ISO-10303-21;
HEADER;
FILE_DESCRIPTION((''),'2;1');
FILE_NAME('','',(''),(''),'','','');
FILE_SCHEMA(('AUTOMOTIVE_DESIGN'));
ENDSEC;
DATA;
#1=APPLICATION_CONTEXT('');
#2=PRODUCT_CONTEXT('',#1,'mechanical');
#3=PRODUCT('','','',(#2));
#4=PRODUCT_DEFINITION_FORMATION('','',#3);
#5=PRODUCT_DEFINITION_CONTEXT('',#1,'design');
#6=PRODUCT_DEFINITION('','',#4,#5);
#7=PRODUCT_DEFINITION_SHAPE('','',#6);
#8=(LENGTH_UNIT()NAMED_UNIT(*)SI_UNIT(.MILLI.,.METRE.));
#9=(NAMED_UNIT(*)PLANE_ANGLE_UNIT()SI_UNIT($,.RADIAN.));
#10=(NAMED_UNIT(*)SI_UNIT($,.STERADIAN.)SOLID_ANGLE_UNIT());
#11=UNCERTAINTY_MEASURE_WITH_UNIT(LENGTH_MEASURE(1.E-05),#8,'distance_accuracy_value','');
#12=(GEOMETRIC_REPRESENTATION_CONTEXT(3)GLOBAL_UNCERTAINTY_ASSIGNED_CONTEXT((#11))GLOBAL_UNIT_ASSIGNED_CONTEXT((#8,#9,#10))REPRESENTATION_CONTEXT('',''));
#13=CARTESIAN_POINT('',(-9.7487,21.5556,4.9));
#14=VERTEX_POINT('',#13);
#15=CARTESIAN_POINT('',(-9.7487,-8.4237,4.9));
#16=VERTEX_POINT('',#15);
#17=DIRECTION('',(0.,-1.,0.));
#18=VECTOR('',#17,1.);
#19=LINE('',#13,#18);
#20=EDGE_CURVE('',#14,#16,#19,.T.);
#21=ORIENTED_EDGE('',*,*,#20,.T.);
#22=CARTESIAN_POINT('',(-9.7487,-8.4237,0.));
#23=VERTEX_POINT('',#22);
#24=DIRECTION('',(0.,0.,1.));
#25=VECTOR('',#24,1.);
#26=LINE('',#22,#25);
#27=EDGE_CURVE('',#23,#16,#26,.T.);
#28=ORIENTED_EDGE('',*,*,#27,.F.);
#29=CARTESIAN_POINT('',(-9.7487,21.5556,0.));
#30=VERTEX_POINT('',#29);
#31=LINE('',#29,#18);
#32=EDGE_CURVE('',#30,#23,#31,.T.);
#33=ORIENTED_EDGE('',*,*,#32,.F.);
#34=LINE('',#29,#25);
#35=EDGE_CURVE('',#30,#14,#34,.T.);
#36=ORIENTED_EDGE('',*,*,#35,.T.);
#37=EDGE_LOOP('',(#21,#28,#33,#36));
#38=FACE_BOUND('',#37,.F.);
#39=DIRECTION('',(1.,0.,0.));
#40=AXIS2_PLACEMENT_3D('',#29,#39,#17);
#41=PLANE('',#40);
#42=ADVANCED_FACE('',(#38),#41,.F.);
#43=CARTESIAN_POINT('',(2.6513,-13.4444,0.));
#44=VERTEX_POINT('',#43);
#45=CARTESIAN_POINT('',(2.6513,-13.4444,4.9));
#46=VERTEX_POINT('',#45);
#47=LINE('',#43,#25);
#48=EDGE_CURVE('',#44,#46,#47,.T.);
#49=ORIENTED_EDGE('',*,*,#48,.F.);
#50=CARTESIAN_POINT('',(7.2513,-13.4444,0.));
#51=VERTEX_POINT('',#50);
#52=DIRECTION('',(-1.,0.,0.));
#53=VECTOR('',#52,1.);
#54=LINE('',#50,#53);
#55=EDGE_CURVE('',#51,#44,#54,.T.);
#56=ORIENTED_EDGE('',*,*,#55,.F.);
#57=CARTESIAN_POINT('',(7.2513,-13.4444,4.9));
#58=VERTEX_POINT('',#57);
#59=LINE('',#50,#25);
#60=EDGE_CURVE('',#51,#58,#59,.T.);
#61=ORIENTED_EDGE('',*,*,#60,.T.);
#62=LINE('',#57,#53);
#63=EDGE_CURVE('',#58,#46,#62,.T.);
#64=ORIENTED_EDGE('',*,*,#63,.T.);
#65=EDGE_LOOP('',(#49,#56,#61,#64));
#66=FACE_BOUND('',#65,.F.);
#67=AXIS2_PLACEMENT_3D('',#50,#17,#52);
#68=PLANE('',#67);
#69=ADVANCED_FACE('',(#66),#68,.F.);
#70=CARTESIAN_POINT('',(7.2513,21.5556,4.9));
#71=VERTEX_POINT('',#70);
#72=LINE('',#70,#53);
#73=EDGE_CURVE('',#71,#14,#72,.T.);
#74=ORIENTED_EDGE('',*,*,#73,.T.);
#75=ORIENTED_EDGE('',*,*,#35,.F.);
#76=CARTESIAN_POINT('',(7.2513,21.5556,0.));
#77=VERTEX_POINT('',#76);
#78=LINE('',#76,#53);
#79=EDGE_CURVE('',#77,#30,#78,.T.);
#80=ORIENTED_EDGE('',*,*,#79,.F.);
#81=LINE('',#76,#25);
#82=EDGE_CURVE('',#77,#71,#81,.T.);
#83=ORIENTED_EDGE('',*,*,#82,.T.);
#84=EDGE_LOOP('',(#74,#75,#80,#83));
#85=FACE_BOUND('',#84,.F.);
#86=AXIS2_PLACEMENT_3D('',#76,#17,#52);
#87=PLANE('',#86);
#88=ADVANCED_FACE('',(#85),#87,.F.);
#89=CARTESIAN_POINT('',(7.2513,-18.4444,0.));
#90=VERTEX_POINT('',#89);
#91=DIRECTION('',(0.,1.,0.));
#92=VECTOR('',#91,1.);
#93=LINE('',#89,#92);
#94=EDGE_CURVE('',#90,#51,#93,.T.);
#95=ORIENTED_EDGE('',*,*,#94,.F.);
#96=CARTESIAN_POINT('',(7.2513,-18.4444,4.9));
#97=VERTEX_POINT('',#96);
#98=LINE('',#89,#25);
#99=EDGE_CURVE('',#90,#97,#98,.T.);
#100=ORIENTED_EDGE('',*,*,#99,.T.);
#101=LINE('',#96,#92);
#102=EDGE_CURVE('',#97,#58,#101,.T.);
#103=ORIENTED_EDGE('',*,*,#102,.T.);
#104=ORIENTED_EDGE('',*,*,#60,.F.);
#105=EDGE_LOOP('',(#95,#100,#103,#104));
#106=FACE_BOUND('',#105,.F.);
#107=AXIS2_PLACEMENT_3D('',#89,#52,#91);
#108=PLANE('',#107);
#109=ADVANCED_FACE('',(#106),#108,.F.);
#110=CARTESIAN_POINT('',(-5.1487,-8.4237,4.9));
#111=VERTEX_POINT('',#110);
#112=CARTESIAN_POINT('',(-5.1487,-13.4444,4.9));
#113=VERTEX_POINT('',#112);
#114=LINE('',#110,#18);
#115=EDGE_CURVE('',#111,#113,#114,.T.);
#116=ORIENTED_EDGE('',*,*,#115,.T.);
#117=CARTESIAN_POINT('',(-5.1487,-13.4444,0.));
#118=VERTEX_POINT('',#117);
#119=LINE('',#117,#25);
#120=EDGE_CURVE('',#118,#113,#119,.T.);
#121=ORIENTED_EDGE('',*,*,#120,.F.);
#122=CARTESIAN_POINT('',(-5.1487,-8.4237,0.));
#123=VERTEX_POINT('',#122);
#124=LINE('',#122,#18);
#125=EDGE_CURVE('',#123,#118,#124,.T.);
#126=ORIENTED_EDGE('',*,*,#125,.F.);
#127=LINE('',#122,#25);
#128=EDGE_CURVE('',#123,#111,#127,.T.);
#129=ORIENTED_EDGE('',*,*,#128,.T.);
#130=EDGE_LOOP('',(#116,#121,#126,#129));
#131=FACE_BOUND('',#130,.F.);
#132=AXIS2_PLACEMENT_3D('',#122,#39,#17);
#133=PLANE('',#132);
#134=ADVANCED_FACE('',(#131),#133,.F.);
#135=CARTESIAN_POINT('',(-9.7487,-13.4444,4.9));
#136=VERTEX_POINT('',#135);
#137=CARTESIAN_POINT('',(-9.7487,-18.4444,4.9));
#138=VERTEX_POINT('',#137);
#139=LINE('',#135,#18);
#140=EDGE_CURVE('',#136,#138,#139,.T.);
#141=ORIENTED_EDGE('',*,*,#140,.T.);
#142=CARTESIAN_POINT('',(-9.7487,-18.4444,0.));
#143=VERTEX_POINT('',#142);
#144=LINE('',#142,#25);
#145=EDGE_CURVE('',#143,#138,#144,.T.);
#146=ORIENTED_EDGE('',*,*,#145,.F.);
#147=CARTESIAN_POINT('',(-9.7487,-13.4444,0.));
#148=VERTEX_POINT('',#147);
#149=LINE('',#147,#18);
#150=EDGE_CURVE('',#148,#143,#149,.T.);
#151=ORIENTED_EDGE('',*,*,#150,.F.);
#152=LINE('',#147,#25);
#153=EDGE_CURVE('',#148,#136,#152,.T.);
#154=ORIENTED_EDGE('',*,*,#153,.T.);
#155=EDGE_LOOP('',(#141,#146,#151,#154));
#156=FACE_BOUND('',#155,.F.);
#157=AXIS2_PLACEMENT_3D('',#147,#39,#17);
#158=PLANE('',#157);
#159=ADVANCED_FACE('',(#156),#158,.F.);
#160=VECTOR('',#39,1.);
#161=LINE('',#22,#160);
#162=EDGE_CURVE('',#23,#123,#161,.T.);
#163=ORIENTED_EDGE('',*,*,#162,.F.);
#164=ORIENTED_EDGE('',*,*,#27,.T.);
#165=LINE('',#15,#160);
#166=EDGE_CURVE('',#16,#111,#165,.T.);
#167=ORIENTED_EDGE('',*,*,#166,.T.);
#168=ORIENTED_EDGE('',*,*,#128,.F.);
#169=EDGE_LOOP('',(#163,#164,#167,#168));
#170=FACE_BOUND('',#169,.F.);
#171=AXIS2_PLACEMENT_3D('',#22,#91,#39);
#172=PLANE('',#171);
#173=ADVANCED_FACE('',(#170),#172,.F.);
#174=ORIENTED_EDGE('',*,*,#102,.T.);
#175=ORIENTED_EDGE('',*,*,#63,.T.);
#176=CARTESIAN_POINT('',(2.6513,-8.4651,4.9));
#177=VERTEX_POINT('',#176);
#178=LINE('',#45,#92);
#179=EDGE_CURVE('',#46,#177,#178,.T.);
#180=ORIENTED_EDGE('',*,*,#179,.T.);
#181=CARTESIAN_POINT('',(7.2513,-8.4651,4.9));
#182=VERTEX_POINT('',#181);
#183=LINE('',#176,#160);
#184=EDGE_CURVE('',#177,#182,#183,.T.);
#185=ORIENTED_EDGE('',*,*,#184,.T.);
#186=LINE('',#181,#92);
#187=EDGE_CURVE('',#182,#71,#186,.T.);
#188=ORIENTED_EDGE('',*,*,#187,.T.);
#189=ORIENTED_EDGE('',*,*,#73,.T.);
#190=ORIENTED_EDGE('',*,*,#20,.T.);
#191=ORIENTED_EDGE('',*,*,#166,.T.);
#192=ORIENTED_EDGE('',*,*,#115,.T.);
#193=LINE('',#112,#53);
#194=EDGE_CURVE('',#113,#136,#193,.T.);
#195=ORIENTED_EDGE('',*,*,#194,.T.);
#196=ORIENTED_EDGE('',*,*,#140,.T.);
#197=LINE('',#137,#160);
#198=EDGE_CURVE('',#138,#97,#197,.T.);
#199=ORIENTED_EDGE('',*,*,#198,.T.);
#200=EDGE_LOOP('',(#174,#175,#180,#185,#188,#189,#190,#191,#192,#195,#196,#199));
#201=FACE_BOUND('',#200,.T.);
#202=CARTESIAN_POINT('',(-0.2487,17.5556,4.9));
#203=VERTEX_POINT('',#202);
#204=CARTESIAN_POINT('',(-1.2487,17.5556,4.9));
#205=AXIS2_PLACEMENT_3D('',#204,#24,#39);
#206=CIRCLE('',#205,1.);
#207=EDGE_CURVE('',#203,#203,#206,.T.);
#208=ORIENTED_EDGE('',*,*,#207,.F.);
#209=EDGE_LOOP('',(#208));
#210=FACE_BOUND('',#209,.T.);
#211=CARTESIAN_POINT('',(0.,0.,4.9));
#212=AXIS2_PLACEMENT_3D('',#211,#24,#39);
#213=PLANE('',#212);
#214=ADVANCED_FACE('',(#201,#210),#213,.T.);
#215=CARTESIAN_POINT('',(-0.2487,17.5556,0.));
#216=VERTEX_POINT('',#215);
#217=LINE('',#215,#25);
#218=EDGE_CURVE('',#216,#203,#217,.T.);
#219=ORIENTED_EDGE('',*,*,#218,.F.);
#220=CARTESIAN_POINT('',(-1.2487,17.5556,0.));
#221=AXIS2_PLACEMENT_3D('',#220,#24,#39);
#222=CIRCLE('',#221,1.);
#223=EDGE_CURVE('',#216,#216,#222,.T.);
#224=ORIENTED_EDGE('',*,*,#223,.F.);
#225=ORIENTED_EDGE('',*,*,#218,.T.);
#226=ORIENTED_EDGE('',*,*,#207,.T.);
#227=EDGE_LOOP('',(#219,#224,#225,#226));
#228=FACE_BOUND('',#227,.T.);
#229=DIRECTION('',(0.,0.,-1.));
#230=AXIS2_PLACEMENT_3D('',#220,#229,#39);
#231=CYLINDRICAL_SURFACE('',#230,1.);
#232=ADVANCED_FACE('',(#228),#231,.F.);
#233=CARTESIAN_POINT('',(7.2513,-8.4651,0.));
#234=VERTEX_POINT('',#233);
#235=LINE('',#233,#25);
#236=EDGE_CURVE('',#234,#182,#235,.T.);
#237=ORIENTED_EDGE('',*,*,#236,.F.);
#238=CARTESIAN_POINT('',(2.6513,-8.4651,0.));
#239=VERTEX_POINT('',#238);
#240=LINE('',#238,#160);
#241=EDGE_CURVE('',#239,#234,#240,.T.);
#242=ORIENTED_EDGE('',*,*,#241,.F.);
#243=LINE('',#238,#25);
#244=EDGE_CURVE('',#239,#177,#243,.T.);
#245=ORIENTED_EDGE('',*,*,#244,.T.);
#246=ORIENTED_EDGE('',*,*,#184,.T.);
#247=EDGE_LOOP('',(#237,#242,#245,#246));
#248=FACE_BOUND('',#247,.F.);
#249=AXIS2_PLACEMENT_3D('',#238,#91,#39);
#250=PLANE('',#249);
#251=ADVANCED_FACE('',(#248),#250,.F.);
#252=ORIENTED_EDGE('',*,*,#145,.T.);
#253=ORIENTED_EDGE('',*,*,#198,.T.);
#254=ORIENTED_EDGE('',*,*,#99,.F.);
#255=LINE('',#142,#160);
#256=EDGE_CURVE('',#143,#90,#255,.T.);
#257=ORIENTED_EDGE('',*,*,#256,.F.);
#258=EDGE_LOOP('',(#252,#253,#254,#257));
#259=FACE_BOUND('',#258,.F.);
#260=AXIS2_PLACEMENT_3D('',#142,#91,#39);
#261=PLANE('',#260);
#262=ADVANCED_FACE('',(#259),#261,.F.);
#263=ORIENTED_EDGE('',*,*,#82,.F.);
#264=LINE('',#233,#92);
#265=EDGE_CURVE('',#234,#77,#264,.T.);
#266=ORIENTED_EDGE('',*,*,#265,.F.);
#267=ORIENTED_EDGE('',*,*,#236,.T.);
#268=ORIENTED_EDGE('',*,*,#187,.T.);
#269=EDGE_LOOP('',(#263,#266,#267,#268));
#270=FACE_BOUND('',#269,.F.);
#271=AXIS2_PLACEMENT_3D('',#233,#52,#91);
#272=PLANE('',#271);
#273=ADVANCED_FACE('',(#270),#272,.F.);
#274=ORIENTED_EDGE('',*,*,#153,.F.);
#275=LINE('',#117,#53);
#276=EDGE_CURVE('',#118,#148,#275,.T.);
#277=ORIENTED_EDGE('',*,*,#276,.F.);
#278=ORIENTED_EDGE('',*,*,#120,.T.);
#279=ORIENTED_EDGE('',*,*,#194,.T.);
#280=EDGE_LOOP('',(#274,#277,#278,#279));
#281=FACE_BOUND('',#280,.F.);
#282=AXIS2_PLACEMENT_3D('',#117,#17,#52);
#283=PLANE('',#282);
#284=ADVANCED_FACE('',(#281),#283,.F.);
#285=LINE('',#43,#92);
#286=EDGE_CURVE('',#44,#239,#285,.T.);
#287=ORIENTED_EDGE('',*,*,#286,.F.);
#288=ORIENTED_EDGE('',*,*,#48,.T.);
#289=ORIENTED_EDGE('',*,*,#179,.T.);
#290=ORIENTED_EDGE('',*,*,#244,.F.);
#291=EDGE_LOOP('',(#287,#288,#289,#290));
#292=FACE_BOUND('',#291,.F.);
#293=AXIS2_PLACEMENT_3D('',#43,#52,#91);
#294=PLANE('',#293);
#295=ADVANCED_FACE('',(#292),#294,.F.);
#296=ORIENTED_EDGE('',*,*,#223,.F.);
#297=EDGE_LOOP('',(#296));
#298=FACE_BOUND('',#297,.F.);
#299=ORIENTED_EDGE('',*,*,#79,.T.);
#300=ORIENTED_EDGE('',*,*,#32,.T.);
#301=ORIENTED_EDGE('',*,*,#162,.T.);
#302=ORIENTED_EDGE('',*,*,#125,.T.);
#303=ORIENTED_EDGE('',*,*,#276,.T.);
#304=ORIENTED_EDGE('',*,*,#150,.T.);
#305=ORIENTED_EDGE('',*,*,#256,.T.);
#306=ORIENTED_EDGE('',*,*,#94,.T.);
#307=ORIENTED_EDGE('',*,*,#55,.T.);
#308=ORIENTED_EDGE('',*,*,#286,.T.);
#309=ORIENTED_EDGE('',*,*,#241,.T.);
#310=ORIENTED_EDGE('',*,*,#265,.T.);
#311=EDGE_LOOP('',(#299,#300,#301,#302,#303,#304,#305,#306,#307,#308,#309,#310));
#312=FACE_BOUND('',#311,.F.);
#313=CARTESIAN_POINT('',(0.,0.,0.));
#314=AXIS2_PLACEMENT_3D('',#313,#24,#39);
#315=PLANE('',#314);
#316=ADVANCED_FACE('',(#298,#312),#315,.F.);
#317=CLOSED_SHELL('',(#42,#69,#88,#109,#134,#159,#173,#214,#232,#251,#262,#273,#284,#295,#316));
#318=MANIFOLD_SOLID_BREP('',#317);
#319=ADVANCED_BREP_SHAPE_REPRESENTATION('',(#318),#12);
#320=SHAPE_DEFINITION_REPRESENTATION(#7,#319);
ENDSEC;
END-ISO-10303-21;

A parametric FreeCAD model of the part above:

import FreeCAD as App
import Part
import Sketcher
Q = App.Units.Quantity

doc = App.newDocument("Part")
params = doc.addObject("Spreadsheet::Sheet", "Params")
for row, (alias, value) in enumerate([
    ("sketch1_diameter", "2 mm"),
    ("sketch1_width", "17 mm"),
    ("sketch1_height", "5 mm"),
    ("sketch1_width2", "4.6 mm"),
    ("pad1_length", "4.9 mm"),
], start=1):
    params.set(f"A{row}", alias)
    params.set(f"B{row}", "=" + value)
    params.setAlias(f"B{row}", alias)

body = doc.addObject("PartDesign::Body", "Body")

# Sketch on XY plane
sketch1 = body.newObject("Sketcher::SketchObject", "Sketch")
sketch1.AttachmentSupport = (doc.getObject("XY_Plane"), [""])
sketch1.MapMode = "FlatFace"
sketch1.addGeometry(Part.LineSegment(App.Vector(-5.1487, -8.4237, 0), App.Vector(-5.1487, -13.4444, 0)), False)
sketch1.addGeometry(Part.LineSegment(App.Vector(-5.1487, -13.4444, 0), App.Vector(-9.7487, -13.4444, 0)), False)
sketch1.addGeometry(Part.LineSegment(App.Vector(-9.7487, -13.4444, 0), App.Vector(-9.7487, -18.4444, 0)), False)
sketch1.addGeometry(Part.LineSegment(App.Vector(-9.7487, -18.4444, 0), App.Vector(7.2513, -18.4444, 0)), False)
sketch1.addGeometry(Part.LineSegment(App.Vector(7.2513, -18.4444, 0), App.Vector(7.2513, -13.4444, 0)), False)
sketch1.addGeometry(Part.LineSegment(App.Vector(7.2513, -13.4444, 0), App.Vector(2.6513, -13.4444, 0)), False)
sketch1.addGeometry(Part.LineSegment(App.Vector(2.6513, -13.4444, 0), App.Vector(2.6513, -8.4651, 0)), False)
sketch1.addGeometry(Part.LineSegment(App.Vector(2.6513, -8.4651, 0), App.Vector(7.2513, -8.4651, 0)), False)
sketch1.addGeometry(Part.LineSegment(App.Vector(7.2513, -8.4651, 0), App.Vector(7.2513, 21.5556, 0)), False)
sketch1.addGeometry(Part.LineSegment(App.Vector(7.2513, 21.5556, 0), App.Vector(-9.7487, 21.5556, 0)), False)
sketch1.addGeometry(Part.LineSegment(App.Vector(-9.7487, 21.5556, 0), App.Vector(-9.7487, -8.4237, 0)), False)
sketch1.addGeometry(Part.LineSegment(App.Vector(-9.7487, -8.4237, 0), App.Vector(-5.1487, -8.4237, 0)), False)
sketch1.addGeometry(Part.Circle(App.Vector(-1.2487, 17.5556, 0), App.Vector(0, 0, 1), 1), False)
sketch1.addConstraint(Sketcher.Constraint("Coincident", 0, 2, 1, 1))
sketch1.addConstraint(Sketcher.Constraint("Coincident", 1, 2, 2, 1))
sketch1.addConstraint(Sketcher.Constraint("Coincident", 2, 2, 3, 1))
sketch1.addConstraint(Sketcher.Constraint("Coincident", 3, 2, 4, 1))
sketch1.addConstraint(Sketcher.Constraint("Coincident", 4, 2, 5, 1))
sketch1.addConstraint(Sketcher.Constraint("Coincident", 5, 2, 6, 1))
sketch1.addConstraint(Sketcher.Constraint("Coincident", 6, 2, 7, 1))
sketch1.addConstraint(Sketcher.Constraint("Coincident", 7, 2, 8, 1))
sketch1.addConstraint(Sketcher.Constraint("Coincident", 8, 2, 9, 1))
sketch1.addConstraint(Sketcher.Constraint("Coincident", 9, 2, 10, 1))
sketch1.addConstraint(Sketcher.Constraint("Coincident", 10, 2, 11, 1))
sketch1.addConstraint(Sketcher.Constraint("Coincident", 11, 2, 0, 1))
sketch1.addConstraint(Sketcher.Constraint("Vertical", 0))
sketch1.addConstraint(Sketcher.Constraint("Horizontal", 1))
sketch1.addConstraint(Sketcher.Constraint("Vertical", 2))
sketch1.addConstraint(Sketcher.Constraint("Horizontal", 3))
sketch1.addConstraint(Sketcher.Constraint("Vertical", 4))
sketch1.addConstraint(Sketcher.Constraint("Horizontal", 5))
sketch1.addConstraint(Sketcher.Constraint("Vertical", 6))
sketch1.addConstraint(Sketcher.Constraint("Horizontal", 7))
sketch1.addConstraint(Sketcher.Constraint("Vertical", 8))
sketch1.addConstraint(Sketcher.Constraint("Horizontal", 9))
sketch1.addConstraint(Sketcher.Constraint("Vertical", 10))
sketch1.addConstraint(Sketcher.Constraint("Horizontal", 11))
sketch1.addConstraint(Sketcher.Constraint("Horizontal", 1, 2, 4, 2))
sketch1.addConstraint(Sketcher.Constraint("Vertical", 4, 2, 7, 2))
sketch1.addConstraint(Sketcher.Constraint("Vertical", 2, 2, 9, 2))
sketch1.addConstraint(Sketcher.Constraint("Equal", 1, 5))
sketch1.addConstraint(Sketcher.Constraint("Diameter", 12, Q("2 mm")))
sketch1.addConstraint(Sketcher.Constraint("DistanceX", 3, 1, 3, 2, Q("17 mm")))
sketch1.addConstraint(Sketcher.Constraint("DistanceY", 2, 2, 2, 1, Q("5 mm")))
sketch1.addConstraint(Sketcher.Constraint("DistanceX", 1, 2, 1, 1, Q("4.6 mm")))
sketch1.addConstraint(Sketcher.Constraint("DistanceY", 0, 2, 12, 3, Q("31 mm")))
sketch1.addConstraint(Sketcher.Constraint("DistanceY", 12, 3, 8, 2, Q("4 mm")))
sketch1.addConstraint(Sketcher.Constraint("DistanceX", 0, 2, 12, 3, Q("3.9 mm")))
sketch1.addConstraint(Sketcher.Constraint("DistanceY", 0, 2, 0, 1, Q("5.0207 mm")))
sketch1.addConstraint(Sketcher.Constraint("DistanceY", 6, 1, 6, 2, Q("4.9793 mm")))
sketch1.addConstraint(Sketcher.Constraint("DistanceY", 6, 2, -1, 1, Q("8.465 mm")))
sketch1.addConstraint(Sketcher.Constraint("DistanceX", 12, 3, -1, 1, Q("1.2487 mm")))
sketch1.setExpression("Constraints[28]", "Params.sketch1_diameter")
sketch1.setExpression("Constraints[29]", "Params.sketch1_width")
sketch1.setExpression("Constraints[30]", "Params.sketch1_height")
sketch1.setExpression("Constraints[31]", "Params.sketch1_width2")
pad1 = body.newObject("PartDesign::Pad", "Pad")
pad1.Profile = sketch1
pad1.setExpression("Length", "Params.pad1_length")

doc.recompute()
